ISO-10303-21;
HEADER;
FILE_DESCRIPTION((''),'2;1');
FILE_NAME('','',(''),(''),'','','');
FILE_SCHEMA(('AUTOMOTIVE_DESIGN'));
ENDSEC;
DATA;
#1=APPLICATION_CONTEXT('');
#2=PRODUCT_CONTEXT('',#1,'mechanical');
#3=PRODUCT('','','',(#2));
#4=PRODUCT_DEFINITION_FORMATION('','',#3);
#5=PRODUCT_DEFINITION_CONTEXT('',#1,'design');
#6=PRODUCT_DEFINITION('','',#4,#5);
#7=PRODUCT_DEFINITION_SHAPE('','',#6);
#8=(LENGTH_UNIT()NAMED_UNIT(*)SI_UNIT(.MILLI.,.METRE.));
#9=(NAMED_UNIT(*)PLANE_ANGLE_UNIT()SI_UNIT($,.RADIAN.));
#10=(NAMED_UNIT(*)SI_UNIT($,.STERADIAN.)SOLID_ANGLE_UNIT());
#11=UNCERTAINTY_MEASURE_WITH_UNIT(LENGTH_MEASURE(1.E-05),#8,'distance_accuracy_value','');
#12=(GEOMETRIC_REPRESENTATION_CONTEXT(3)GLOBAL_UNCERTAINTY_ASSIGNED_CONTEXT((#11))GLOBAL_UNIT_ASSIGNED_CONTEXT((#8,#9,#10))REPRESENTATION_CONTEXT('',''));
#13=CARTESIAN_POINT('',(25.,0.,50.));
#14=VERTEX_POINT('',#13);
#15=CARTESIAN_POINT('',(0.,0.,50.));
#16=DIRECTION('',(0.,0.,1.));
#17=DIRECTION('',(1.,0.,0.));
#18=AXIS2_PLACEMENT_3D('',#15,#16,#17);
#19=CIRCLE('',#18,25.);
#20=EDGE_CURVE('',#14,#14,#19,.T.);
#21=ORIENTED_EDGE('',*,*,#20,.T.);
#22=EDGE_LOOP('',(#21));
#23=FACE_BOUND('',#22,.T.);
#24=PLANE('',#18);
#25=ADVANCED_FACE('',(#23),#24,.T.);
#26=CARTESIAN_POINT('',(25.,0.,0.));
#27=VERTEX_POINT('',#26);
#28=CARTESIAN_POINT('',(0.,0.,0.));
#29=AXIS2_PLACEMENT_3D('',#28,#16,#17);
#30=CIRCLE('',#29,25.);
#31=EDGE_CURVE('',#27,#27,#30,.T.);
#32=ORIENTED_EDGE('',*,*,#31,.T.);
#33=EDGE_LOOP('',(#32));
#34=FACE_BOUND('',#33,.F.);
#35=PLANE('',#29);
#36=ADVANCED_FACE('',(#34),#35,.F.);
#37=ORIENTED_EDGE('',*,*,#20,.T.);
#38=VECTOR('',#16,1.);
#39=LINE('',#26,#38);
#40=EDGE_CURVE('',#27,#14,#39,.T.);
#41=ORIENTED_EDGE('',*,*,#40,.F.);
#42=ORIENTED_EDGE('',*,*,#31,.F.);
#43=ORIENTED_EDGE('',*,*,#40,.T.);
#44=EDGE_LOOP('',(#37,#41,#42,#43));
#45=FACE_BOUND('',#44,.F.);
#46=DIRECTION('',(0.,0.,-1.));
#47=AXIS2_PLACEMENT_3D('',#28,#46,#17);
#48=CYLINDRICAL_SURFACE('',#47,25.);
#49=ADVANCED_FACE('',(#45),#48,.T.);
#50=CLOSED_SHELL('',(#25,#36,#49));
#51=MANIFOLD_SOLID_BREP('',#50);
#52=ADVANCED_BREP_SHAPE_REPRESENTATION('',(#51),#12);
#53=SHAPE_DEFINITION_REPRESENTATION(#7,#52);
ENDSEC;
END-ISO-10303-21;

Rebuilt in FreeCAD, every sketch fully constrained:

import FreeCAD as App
import Part
import Sketcher
from FreeCAD import Vector
Q = App.Units.Quantity

doc = App.newDocument("Part")
body = doc.addObject("PartDesign::Body", "Body")

sketch1 = doc.addObject("Sketcher::SketchObject", "Sketch")
body.addObject(sketch1)
sketch1.AttachmentSupport = (doc.XY_Plane, [""])
sketch1.MapMode = "FlatFace"
sketch1.addGeometry(Part.Circle(Vector(0, 0, 0), Vector(0, 0, 1), 25), False)
sketch1.addConstraint([
    Sketcher.Constraint("Coincident", 0, 3, -1, 1),
    Sketcher.Constraint("Diameter", 0, Q("50 mm")),
])
pad1 = doc.addObject("PartDesign::Pad", "Pad")
body.addObject(pad1)
pad1.Profile = sketch1
pad1.Length = 50

doc.recompute()
